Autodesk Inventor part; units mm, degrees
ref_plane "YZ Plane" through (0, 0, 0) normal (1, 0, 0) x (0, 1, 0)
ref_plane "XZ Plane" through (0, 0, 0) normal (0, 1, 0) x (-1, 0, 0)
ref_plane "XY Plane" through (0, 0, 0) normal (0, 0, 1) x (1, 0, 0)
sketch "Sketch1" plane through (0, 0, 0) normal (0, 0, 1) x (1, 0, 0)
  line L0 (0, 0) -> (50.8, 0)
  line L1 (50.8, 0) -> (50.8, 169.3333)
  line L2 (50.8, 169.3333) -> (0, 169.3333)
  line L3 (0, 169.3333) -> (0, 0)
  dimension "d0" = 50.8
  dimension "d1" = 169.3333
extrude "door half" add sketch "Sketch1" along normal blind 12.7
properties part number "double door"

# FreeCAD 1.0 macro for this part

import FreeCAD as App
import Part
import Sketcher
Q = App.Units.Quantity

doc = App.newDocument("Part")
params = doc.addObject("Spreadsheet::Sheet", "Params")
for row, (alias, value) in enumerate([
    ("sketch1_width", "2 in"),
    ("pad1_length", "0.5 in"),
], start=1):
    params.set(f"A{row}", alias)
    params.set(f"B{row}", "=" + value)
    params.setAlias(f"B{row}", alias)

body = doc.addObject("PartDesign::Body", "Body")

sketch1 = body.newObject("Sketcher::SketchObject", "Sketch")
sketch1.AttachmentSupport = (doc.getObject("XY_Plane"), [""])
sketch1.MapMode = "FlatFace"
sketch1.addGeometry([
    Part.LineSegment(App.Vector(0, 169, 0), App.Vector(0, 0, 0)),
    Part.LineSegment(App.Vector(0, 0, 0), App.Vector(51, 0, 0)),
    Part.LineSegment(App.Vector(51, 0, 0), App.Vector(51, 169, 0)),
    Part.LineSegment(App.Vector(51, 169, 0), App.Vector(0, 169, 0)),
], False)
sketch1.addConstraint([
    Sketcher.Constraint("Coincident", 0, 2, 1, 1),
    Sketcher.Constraint("Coincident", 1, 2, 2, 1),
    Sketcher.Constraint("Coincident", 2, 2, 3, 1),
    Sketcher.Constraint("Coincident", 3, 2, 0, 1),
    Sketcher.Constraint("Vertical", 0),
    Sketcher.Constraint("Horizontal", 1),
    Sketcher.Constraint("Vertical", 2),
    Sketcher.Constraint("Horizontal", 3),
    Sketcher.Constraint("Coincident", 0, 2, -1, 1),
    Sketcher.Constraint("DistanceX", 1, 1, 1, 2, Q("2 in")),
    Sketcher.Constraint("DistanceY", 0, 2, 0, 1, Q("169.3333 mm")),
])
sketch1.setExpression("Constraints[9]", "Params.sketch1_width")
pad1 = body.newObject("PartDesign::Pad", "Pad")
pad1.Profile = sketch1
pad1.setExpression("Length", "Params.pad1_length")

doc.recompute()
